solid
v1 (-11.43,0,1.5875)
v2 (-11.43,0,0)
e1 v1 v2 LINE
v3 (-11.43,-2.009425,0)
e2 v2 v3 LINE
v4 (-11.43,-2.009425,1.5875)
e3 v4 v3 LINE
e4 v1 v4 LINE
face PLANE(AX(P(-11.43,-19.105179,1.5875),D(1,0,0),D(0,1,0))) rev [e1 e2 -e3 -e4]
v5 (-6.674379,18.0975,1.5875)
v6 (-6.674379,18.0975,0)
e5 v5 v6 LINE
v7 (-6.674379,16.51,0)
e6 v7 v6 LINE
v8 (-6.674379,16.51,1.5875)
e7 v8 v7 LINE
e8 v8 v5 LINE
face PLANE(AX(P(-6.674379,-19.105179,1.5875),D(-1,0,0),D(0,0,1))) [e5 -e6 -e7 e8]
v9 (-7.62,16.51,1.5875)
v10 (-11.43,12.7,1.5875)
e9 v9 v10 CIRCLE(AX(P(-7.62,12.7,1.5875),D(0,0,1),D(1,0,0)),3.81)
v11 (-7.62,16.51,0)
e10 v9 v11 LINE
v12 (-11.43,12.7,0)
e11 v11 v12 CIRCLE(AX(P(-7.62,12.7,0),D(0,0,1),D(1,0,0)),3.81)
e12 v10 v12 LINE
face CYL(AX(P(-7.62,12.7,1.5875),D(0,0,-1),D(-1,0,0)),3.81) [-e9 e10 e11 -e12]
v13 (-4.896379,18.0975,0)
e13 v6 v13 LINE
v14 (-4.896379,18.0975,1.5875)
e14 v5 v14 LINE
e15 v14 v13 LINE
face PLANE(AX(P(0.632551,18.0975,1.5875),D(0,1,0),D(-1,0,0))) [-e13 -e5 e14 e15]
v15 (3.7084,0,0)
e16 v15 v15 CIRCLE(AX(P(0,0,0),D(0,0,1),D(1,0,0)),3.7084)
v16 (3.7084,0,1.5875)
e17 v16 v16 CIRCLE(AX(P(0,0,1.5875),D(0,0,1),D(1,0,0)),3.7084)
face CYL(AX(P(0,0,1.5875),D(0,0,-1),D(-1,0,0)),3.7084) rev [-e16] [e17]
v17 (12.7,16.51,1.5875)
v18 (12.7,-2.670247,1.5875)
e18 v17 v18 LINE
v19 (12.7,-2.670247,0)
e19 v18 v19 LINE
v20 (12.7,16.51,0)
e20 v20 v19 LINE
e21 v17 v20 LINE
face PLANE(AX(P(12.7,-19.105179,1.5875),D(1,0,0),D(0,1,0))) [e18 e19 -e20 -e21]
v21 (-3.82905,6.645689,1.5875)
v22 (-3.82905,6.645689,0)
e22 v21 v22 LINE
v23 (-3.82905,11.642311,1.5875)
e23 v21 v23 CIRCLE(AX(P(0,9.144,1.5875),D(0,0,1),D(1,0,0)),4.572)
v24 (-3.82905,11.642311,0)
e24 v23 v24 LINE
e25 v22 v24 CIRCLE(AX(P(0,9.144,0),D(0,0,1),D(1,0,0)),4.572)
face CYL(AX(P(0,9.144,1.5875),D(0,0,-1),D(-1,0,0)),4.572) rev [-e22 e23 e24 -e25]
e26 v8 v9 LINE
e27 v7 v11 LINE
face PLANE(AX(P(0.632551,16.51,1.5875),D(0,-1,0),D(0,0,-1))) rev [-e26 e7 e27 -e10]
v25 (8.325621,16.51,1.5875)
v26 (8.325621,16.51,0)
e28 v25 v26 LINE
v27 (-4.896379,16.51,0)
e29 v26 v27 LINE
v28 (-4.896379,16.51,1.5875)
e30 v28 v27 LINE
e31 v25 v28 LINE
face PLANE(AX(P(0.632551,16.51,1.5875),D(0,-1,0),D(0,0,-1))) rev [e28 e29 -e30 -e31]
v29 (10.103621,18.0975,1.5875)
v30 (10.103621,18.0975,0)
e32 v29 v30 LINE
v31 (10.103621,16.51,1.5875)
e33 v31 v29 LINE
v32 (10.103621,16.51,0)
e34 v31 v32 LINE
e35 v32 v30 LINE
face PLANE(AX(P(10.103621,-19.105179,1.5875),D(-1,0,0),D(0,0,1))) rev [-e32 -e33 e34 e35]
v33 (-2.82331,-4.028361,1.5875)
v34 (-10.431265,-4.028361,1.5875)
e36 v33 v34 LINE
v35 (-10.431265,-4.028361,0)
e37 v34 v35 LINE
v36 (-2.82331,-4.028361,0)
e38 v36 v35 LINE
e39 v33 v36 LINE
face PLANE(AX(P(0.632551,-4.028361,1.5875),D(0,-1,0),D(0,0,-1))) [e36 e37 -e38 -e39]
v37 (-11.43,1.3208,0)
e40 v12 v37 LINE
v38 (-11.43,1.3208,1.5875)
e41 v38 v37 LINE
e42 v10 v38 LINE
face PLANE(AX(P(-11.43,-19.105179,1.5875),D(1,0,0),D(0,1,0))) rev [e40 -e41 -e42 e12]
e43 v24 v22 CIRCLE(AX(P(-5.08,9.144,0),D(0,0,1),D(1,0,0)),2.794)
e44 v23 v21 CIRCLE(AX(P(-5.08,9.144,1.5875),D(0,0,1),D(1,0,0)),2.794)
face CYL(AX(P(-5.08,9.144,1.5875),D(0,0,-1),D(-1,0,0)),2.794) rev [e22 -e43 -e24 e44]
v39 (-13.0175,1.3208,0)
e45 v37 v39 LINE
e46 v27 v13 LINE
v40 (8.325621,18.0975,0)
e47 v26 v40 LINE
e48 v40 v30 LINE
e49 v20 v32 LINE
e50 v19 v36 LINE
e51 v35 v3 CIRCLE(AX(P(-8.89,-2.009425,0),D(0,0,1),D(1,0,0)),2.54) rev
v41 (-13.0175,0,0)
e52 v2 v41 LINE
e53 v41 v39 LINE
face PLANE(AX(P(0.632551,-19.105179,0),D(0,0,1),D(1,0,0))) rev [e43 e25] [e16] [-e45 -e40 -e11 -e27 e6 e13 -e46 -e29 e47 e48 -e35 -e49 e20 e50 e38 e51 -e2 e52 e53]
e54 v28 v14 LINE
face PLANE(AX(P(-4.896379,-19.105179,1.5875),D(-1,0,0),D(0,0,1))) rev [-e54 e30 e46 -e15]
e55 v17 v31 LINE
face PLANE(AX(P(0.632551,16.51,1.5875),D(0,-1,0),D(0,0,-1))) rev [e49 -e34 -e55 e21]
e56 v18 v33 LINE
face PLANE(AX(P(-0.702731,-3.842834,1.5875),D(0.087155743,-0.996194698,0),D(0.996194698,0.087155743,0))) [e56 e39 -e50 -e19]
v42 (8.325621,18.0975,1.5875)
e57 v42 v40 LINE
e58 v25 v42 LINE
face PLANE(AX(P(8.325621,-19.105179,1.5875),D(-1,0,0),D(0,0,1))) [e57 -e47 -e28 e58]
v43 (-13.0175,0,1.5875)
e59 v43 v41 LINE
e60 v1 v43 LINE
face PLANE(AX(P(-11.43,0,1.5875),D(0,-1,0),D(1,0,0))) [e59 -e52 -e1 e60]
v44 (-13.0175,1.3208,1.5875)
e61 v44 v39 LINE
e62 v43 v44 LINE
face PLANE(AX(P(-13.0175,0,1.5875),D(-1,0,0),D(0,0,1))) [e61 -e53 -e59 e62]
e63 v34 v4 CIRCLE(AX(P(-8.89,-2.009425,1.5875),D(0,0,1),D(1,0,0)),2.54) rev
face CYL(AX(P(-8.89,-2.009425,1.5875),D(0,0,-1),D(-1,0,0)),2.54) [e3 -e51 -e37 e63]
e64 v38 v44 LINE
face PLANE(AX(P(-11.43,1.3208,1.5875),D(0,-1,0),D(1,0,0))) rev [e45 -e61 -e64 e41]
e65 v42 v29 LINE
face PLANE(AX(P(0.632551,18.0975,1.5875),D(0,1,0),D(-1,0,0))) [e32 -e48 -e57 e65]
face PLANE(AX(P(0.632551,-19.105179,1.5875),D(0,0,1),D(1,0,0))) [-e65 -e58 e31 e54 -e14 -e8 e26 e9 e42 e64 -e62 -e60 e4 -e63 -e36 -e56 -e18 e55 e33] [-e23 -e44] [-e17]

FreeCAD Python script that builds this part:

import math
import FreeCAD as App
import Part
import Sketcher

V = App.Vector
Q = App.Units.Quantity

doc = App.newDocument("Part")
body = doc.addObject("PartDesign::Body", "Body")

sketch1 = doc.addObject("Sketcher::SketchObject", "Sketch")
body.addObject(sketch1)
sketch1.AttachmentSupport = (doc.XY_Plane, [""])
sketch1.MapMode = "FlatFace"
sketch1.addGeometry([
    Part.LineSegment(V(-10.4, -4, 0), V(-2.8, -4, 0)),
    Part.LineSegment(V(-2.8, -4, 0), V(12.7, -2.7, 0)),
    Part.LineSegment(V(12.7, -2.7, 0), V(12.7, 16.5, 0)),
    Part.LineSegment(V(12.7, 16.5, 0), V(10.1, 16.5, 0)),
    Part.LineSegment(V(10.1, 16.5, 0), V(10.1, 18.1, 0)),
    Part.LineSegment(V(10.1, 18.1, 0), V(8.3, 18.1, 0)),
    Part.LineSegment(V(8.3, 18.1, 0), V(8.3, 16.5, 0)),
    Part.LineSegment(V(8.3, 16.5, 0), V(-4.9, 16.5, 0)),
    Part.LineSegment(V(-4.9, 16.5, 0), V(-4.9, 18.1, 0)),
    Part.LineSegment(V(-4.9, 18.1, 0), V(-6.7, 18.1, 0)),
    Part.LineSegment(V(-6.7, 18.1, 0), V(-6.7, 16.5, 0)),
    Part.LineSegment(V(-6.7, 16.5, 0), V(-7.6, 16.5, 0)),
    Part.ArcOfCircle(Part.Circle(V(-7.6, 12.7, 0), V(0, 0, 1), 3.8), math.radians(90), math.radians(180)),
    Part.LineSegment(V(-11.4, 12.7, 0), V(-11.4, 1.3, 0)),
    Part.LineSegment(V(-11.4, 1.3, 0), V(-13, 1.3, 0)),
    Part.LineSegment(V(-13, 1.3, 0), V(-13, 0, 0)),
    Part.LineSegment(V(-13, 0, 0), V(-11.4, 0, 0)),
    Part.LineSegment(V(-11.4, 0, 0), V(-11.4, -2, 0)),
    Part.ArcOfCircle(Part.Circle(V(-8.9, -2, 0), V(0, 0, 1), 2.5), math.radians(-180), math.radians(-127)),
    Part.Circle(V(0, 0, 0), V(0, 0, 1), 3.7),
    Part.ArcOfCircle(Part.Circle(V(-5.1, 9.1, 0), V(0, 0, 1), 2.8), math.radians(63), math.radians(297)),
    Part.ArcOfCircle(Part.Circle(V(0, 9.1, 0), V(0, 0, 1), 4.6), math.radians(-147), math.radians(147)),
], False)
sketch1.addConstraint([
    Sketcher.Constraint("Coincident", 0, 2, 1, 1),
    Sketcher.Constraint("Coincident", 1, 2, 2, 1),
    Sketcher.Constraint("Coincident", 2, 2, 3, 1),
    Sketcher.Constraint("Coincident", 3, 2, 4, 1),
    Sketcher.Constraint("Coincident", 4, 2, 5, 1),
    Sketcher.Constraint("Coincident", 5, 2, 6, 1),
    Sketcher.Constraint("Coincident", 6, 2, 7, 1),
    Sketcher.Constraint("Coincident", 7, 2, 8, 1),
    Sketcher.Constraint("Coincident", 8, 2, 9, 1),
    Sketcher.Constraint("Coincident", 9, 2, 10, 1),
    Sketcher.Constraint("Coincident", 10, 2, 11, 1),
    Sketcher.Constraint("Tangent", 11, 2, 12, 1),
    Sketcher.Constraint("Tangent", 12, 2, 13, 1),
    Sketcher.Constraint("Coincident", 13, 2, 14, 1),
    Sketcher.Constraint("Coincident", 14, 2, 15, 1),
    Sketcher.Constraint("Coincident", 15, 2, 16, 1),
    Sketcher.Constraint("Coincident", 16, 2, 17, 1),
    Sketcher.Constraint("Tangent", 17, 2, 18, 1),
    Sketcher.Constraint("Coincident", 18, 2, 0, 1),
    Sketcher.Constraint("Coincident", 20, 1, 21, 2),
    Sketcher.Constraint("Coincident", 21, 1, 20, 2),
    Sketcher.Constraint("Horizontal", 0),
    Sketcher.Constraint("Vertical", 2),
    Sketcher.Constraint("Horizontal", 3),
    Sketcher.Constraint("Vertical", 4),
    Sketcher.Constraint("Horizontal", 5),
    Sketcher.Constraint("Vertical", 6),
    Sketcher.Constraint("Horizontal", 7),
    Sketcher.Constraint("Vertical", 8),
    Sketcher.Constraint("Horizontal", 9),
    Sketcher.Constraint("Vertical", 10),
    Sketcher.Constraint("Horizontal", 11),
    Sketcher.Constraint("Vertical", 13),
    Sketcher.Constraint("Horizontal", 14),
    Sketcher.Constraint("Vertical", 15),
    Sketcher.Constraint("Horizontal", 16),
    Sketcher.Constraint("Vertical", 17),
    Sketcher.Constraint("Coincident", 19, 3, -1, 1),
    Sketcher.Constraint("PointOnObject", 21, 3, -2),
    Sketcher.Constraint("PointOnObject", 15, 2, -1),
    Sketcher.Constraint("Horizontal", 20, 3, 21, 3),
    Sketcher.Constraint("Horizontal", 3, 2, 6, 2),
    Sketcher.Constraint("Horizontal", 5, 2, 8, 2),
    Sketcher.Constraint("Horizontal", 7, 2, 10, 2),
    Sketcher.Constraint("Vertical", 13, 2, 16, 2),
    Sketcher.Constraint("Equal", 5, 9),
    Sketcher.Constraint("Equal", 16, 4),
    Sketcher.Constraint("Radius", 18, Q("0.1 in")),
    Sketcher.Constraint("Radius", 12, Q("0.15 in")),
    Sketcher.Constraint("Radius", 20, Q("0.11 in")),
    Sketcher.Constraint("Radius", 21, Q("0.18 in")),
    Sketcher.Constraint("Diameter", 19, Q("0.292 in")),
    Sketcher.Constraint("Angle", 1, Q("5 deg")),
    Sketcher.Constraint("DistanceX", 5, 2, 5, 1, Q("0.07 in")),
    Sketcher.Constraint("DistanceX", 12, 3, -1, 1, Q("0.3 in")),
    Sketcher.Constraint("DistanceY", -1, 1, 12, 3, Q("0.5 in")),
    Sketcher.Constraint("DistanceX", 20, 3, -1, 1, Q("0.2 in")),
    Sketcher.Constraint("DistanceX", -1, 1, 1, 2, Q("0.5 in")),
    Sketcher.Constraint("DistanceX", 14, 2, 14, 1, Q("0.0625 in")),
    Sketcher.Constraint("DistanceY", 13, 2, 13, 1, Q("0.448 in")),
    Sketcher.Constraint("DistanceY", -1, 1, 20, 3, Q("0.36 in")),
    Sketcher.Constraint("DistanceX", 7, 2, 7, 1, 13.222),
    Sketcher.Constraint("DistanceX", 3, 2, 3, 1, 2.596379),
    Sketcher.Constraint("DistanceX", 0, 1, 0, 2, 7.607955),
    Sketcher.Constraint("DistanceY", 2, 1, 2, 2, 19.180247),
    Sketcher.Constraint("DistanceY", 17, 2, 17, 1, 2.009425),
])
pad1 = doc.addObject("PartDesign::Pad", "Pad")
body.addObject(pad1)
pad1.Profile = sketch1
pad1.Length = Q("0.0625 in")

doc.recompute()
